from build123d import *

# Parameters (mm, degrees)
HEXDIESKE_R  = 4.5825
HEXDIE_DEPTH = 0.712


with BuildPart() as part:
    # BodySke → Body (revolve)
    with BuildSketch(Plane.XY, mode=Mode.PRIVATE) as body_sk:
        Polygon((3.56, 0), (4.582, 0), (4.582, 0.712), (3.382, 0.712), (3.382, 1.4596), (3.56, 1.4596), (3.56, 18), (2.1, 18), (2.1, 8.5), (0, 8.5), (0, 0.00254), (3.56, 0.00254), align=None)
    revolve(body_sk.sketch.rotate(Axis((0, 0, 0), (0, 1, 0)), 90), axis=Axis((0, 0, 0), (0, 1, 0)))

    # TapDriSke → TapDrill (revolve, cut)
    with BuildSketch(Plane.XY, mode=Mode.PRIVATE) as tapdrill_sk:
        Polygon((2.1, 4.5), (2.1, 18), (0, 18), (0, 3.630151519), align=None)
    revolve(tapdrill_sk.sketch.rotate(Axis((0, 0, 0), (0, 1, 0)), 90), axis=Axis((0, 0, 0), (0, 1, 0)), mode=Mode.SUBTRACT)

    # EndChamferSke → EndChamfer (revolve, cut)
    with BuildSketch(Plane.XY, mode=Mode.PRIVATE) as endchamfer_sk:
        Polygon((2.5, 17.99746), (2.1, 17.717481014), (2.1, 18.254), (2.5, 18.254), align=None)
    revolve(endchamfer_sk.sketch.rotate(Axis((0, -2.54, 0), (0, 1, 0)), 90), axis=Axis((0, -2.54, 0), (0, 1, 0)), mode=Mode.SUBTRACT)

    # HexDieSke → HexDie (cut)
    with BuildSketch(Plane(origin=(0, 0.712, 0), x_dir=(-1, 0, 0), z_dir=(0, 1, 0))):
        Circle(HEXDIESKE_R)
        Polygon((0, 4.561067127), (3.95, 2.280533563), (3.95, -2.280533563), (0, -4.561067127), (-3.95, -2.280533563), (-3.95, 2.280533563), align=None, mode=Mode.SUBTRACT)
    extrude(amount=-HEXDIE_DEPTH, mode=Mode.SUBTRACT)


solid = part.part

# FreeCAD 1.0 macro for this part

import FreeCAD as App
import Part
import Sketcher

V = App.Vector
Q = App.Units.Quantity

doc = App.newDocument("Part")
body = doc.addObject("PartDesign::Body", "Body")

# Sketch on XY plane
sketch1 = body.newObject("Sketcher::SketchObject", "Sketch")
sketch1.AttachmentSupport = (doc.getObject("XY_Plane"), [""])
sketch1.MapMode = "FlatFace"
sketch1.addGeometry(Part.LineSegment(V(3.56, 0, 0), V(4.582, 0, 0)), False)
sketch1.addGeometry(Part.LineSegment(V(4.582, 0, 0), V(4.582, 0.712, 0)), False)
sketch1.addGeometry(Part.LineSegment(V(4.582, 0.712, 0), V(3.382, 0.712, 0)), False)
sketch1.addGeometry(Part.LineSegment(V(3.382, 0.712, 0), V(3.382, 1.4596, 0)), False)
sketch1.addGeometry(Part.LineSegment(V(3.382, 1.4596, 0), V(3.56, 1.4596, 0)), False)
sketch1.addGeometry(Part.LineSegment(V(3.56, 1.4596, 0), V(3.56, 18, 0)), False)
sketch1.addGeometry(Part.LineSegment(V(3.56, 18, 0), V(2.1, 18, 0)), False)
sketch1.addGeometry(Part.LineSegment(V(2.1, 18, 0), V(2.1, 8.5, 0)), False)
sketch1.addGeometry(Part.LineSegment(V(2.1, 8.5, 0), V(0, 8.5, 0)), False)
sketch1.addGeometry(Part.LineSegment(V(0, 8.5, 0), V(0, 0.00254, 0)), False)
sketch1.addGeometry(Part.LineSegment(V(0, 0.00254, 0), V(3.56, 0.00254, 0)), False)
sketch1.addGeometry(Part.LineSegment(V(3.56, 0.00254, 0), V(3.56, 0, 0)), False)
sketch1.addConstraint(Sketcher.Constraint("Coincident", 0, 2, 1, 1))
sketch1.addConstraint(Sketcher.Constraint("Coincident", 1, 2, 2, 1))
sketch1.addConstraint(Sketcher.Constraint("Coincident", 2, 2, 3, 1))
sketch1.addConstraint(Sketcher.Constraint("Coincident", 3, 2, 4, 1))
sketch1.addConstraint(Sketcher.Constraint("Coincident", 4, 2, 5, 1))
sketch1.addConstraint(Sketcher.Constraint("Coincident", 5, 2, 6, 1))
sketch1.addConstraint(Sketcher.Constraint("Coincident", 6, 2, 7, 1))
sketch1.addConstraint(Sketcher.Constraint("Coincident", 7, 2, 8, 1))
sketch1.addConstraint(Sketcher.Constraint("Coincident", 8, 2, 9, 1))
sketch1.addConstraint(Sketcher.Constraint("Coincident", 9, 2, 10, 1))
sketch1.addConstraint(Sketcher.Constraint("Coincident", 10, 2, 11, 1))
sketch1.addConstraint(Sketcher.Constraint("Coincident", 11, 2, 0, 1))
sketch1.addConstraint(Sketcher.Constraint("Horizontal", 0))
sketch1.addConstraint(Sketcher.Constraint("Vertical", 1))
sketch1.addConstraint(Sketcher.Constraint("Horizontal", 2))
sketch1.addConstraint(Sketcher.Constraint("Vertical", 3))
sketch1.addConstraint(Sketcher.Constraint("Horizontal", 4))
sketch1.addConstraint(Sketcher.Constraint("Vertical", 5))
sketch1.addConstraint(Sketcher.Constraint("Horizontal", 6))
sketch1.addConstraint(Sketcher.Constraint("Vertical", 7))
sketch1.addConstraint(Sketcher.Constraint("Horizontal", 8))
sketch1.addConstraint(Sketcher.Constraint("Vertical", 9))
sketch1.addConstraint(Sketcher.Constraint("Horizontal", 10))
sketch1.addConstraint(Sketcher.Constraint("Vertical", 11))
sketch1.addConstraint(Sketcher.Constraint("PointOnObject", 0, 2, -1))
sketch1.addConstraint(Sketcher.Constraint("PointOnObject", 8, 2, -2))
sketch1.addConstraint(Sketcher.Constraint("Vertical", 5, 2, 10, 2))
sketch1.addConstraint(Sketcher.Constraint("DistanceX", 2, 2, 2, 1, Q("1.2 mm")))
sketch1.addConstraint(Sketcher.Constraint("DistanceX", 8, 2, 8, 1, Q("2.1 mm")))
sketch1.addConstraint(Sketcher.Constraint("DistanceY", 7, 2, 7, 1, Q("9.5 mm")))
sketch1.addConstraint(Sketcher.Constraint("DistanceY", -1, 1, 5, 2, Q("18 mm")))
sketch1.addConstraint(Sketcher.Constraint("DistanceX", 6, 2, 6, 1, Q("1.46 mm")))
sketch1.addConstraint(Sketcher.Constraint("DistanceX", 0, 1, 0, 2, Q("1.022 mm")))
sketch1.addConstraint(Sketcher.Constraint("DistanceY", 1, 1, 1, 2, Q("0.712 mm")))
sketch1.addConstraint(Sketcher.Constraint("DistanceY", 3, 1, 3, 2, Q("0.7476 mm")))
sketch1.addConstraint(Sketcher.Constraint("DistanceY", 9, 2, 9, 1, Q("8.49746 mm")))
revolution = body.newObject("PartDesign::Revolution", "Revolution")
revolution.Profile = sketch1
revolution.ReferenceAxis = (sketch1, ["V_Axis"])
revolution.Angle = 360

# Sketch on XY plane
sketch2 = body.newObject("Sketcher::SketchObject", "Sketch001")
sketch2.AttachmentSupport = (doc.getObject("XY_Plane"), [""])
sketch2.MapMode = "FlatFace"
sketch2.addGeometry(Part.LineSegment(V(2.1, 4.5, 0), V(2.1, 18, 0)), False)
sketch2.addGeometry(Part.LineSegment(V(2.1, 18, 0), V(0, 18, 0)), False)
sketch2.addGeometry(Part.LineSegment(V(0, 18, 0), V(0, 3.630152, 0)), False)
sketch2.addGeometry(Part.LineSegment(V(0, 3.630152, 0), V(2.1, 4.5, 0)), False)
sketch2.addConstraint(Sketcher.Constraint("Coincident", 0, 2, 1, 1))
sketch2.addConstraint(Sketcher.Constraint("Coincident", 1, 2, 2, 1))
sketch2.addConstraint(Sketcher.Constraint("Coincident", 2, 2, 3, 1))
sketch2.addConstraint(Sketcher.Constraint("Coincident", 3, 2, 0, 1))
sketch2.addConstraint(Sketcher.Constraint("Vertical", 0))
sketch2.addConstraint(Sketcher.Constraint("Horizontal", 1))
sketch2.addConstraint(Sketcher.Constraint("Vertical", 2))
sketch2.addConstraint(Sketcher.Constraint("PointOnObject", 1, 2, -2))
sketch2.addConstraint(Sketcher.Constraint("DistanceX", 1, 2, 1, 1, Q("2.1 mm")))
sketch2.addConstraint(Sketcher.Constraint("DistanceY", 0, 1, 0, 2, Q("13.5 mm")))
sketch2.addConstraint(Sketcher.Constraint("DistanceY", -1, 1, 0, 2, Q("18 mm")))
sketch2.addConstraint(Sketcher.Constraint("Angle", 3, Q("22.5 deg")))
groove = body.newObject("PartDesign::Groove", "Groove")
groove.Profile = sketch2
groove.ReferenceAxis = (sketch2, ["V_Axis"])
groove.Angle = 360

# Sketch on XY plane
sketch3 = body.newObject("Sketcher::SketchObject", "Sketch002")
sketch3.AttachmentSupport = (doc.getObject("XY_Plane"), [""])
sketch3.MapMode = "FlatFace"
sketch3.addGeometry(Part.LineSegment(V(2.1, 17.717481, 0), V(2.5, 17.99746, 0)), False)
sketch3.addGeometry(Part.LineSegment(V(2.5, 17.99746, 0), V(2.5, 18.254, 0)), False)
sketch3.addGeometry(Part.LineSegment(V(2.5, 18.254, 0), V(2.1, 18.254, 0)), False)
sketch3.addGeometry(Part.LineSegment(V(2.1, 18.254, 0), V(2.1, 17.717481, 0)), False)
sketch3.addConstraint(Sketcher.Constraint("Coincident", 0, 2, 1, 1))
sketch3.addConstraint(Sketcher.Constraint("Coincident", 1, 2, 2, 1))
sketch3.addConstraint(Sketcher.Constraint("Coincident", 2, 2, 3, 1))
sketch3.addConstraint(Sketcher.Constraint("Coincident", 3, 2, 0, 1))
sketch3.addConstraint(Sketcher.Constraint("Vertical", 1))
sketch3.addConstraint(Sketcher.Constraint("Horizontal", 2))
sketch3.addConstraint(Sketcher.Constraint("Vertical", 3))
sketch3.addConstraint(Sketcher.Constraint("DistanceX", 2, 2, 2, 1, Q("0.4 mm")))
sketch3.addConstraint(Sketcher.Constraint("DistanceX", -1, 1, 0, 2, Q("2.5 mm")))
sketch3.addConstraint(Sketcher.Constraint("Angle", 0, Q("34.99 deg")))
sketch3.addConstraint(Sketcher.Constraint("DistanceY", -1, 1, 1, 2, Q("18.254 mm")))
sketch3.addConstraint(Sketcher.Constraint("DistanceY", 1, 1, 1, 2, Q("0.25654 mm")))
groove2 = body.newObject("PartDesign::Groove", "Groove001")
groove2.Profile = sketch3
groove2.ReferenceAxis = (sketch3, ["V_Axis"])
groove2.Angle = 360

# Sketch on XZ plane
sketch4 = body.newObject("Sketcher::SketchObject", "Sketch003")
sketch4.AttachmentSupport = (doc.getObject("XZ_Plane"), [""])
sketch4.MapMode = "FlatFace"
sketch4.AttachmentOffset = App.Placement(V(0, 0, -0.712), App.Rotation())
sketch4.addGeometry(Part.Circle(V(0, 0, 0), V(0, 0, 1), 4.5825), False)
sketch4.addGeometry(Part.LineSegment(V(3.95, 2.280534, 0), V(0, 4.561067, 0)), False)
sketch4.addGeometry(Part.LineSegment(V(0, 4.561067, 0), V(-3.95, 2.280534, 0)), False)
sketch4.addGeometry(Part.LineSegment(V(-3.95, 2.280534, 0), V(-3.95, -2.280534, 0)), False)
sketch4.addGeometry(Part.LineSegment(V(-3.95, -2.280534, 0), V(0, -4.561067, 0)), False)
sketch4.addGeometry(Part.LineSegment(V(0, -4.561067, 0), V(3.95, -2.280534, 0)), False)
sketch4.addGeometry(Part.LineSegment(V(3.95, -2.280534, 0), V(3.95, 2.280534, 0)), False)
sketch4.addConstraint(Sketcher.Constraint("Coincident", 1, 2, 2, 1))
sketch4.addConstraint(Sketcher.Constraint("Coincident", 2, 2, 3, 1))
sketch4.addConstraint(Sketcher.Constraint("Coincident", 3, 2, 4, 1))
sketch4.addConstraint(Sketcher.Constraint("Coincident", 4, 2, 5, 1))
sketch4.addConstraint(Sketcher.Constraint("Coincident", 5, 2, 6, 1))
sketch4.addConstraint(Sketcher.Constraint("Coincident", 6, 2, 1, 1))
sketch4.addConstraint(Sketcher.Constraint("Vertical", 3))
sketch4.addConstraint(Sketcher.Constraint("Vertical", 6))
sketch4.addConstraint(Sketcher.Constraint("Coincident", 0, 3, -1, 1))
sketch4.addConstraint(Sketcher.Constraint("Symmetric", 1, 2, 4, 2, -1, 1))
sketch4.addConstraint(Sketcher.Constraint("Symmetric", 2, 2, 5, 2, -1, 1))
sketch4.addConstraint(Sketcher.Constraint("PointOnObject", 1, 2, -2))
sketch4.addConstraint(Sketcher.Constraint("Parallel", 1, 4))
sketch4.addConstraint(Sketcher.Constraint("Horizontal", 3, 2, 5, 2))
sketch4.addConstraint(Sketcher.Constraint("Angle", 1, Q("150 deg")))
sketch4.addConstraint(Sketcher.Constraint("Diameter", 0, Q("9.165 mm")))
sketch4.addConstraint(Sketcher.Constraint("DistanceX", 3, 2, 5, 2, Q("7.9 mm")))
sketch4.addConstraint(Sketcher.Constraint("DistanceY", 3, 2, 1, 2, Q("6.841601 mm")))
pocket1 = body.newObject("PartDesign::Pocket", "Pocket")
pocket1.Profile = sketch4
pocket1.Length = 0.712
pocket1.Reversed = True

doc.recompute()
